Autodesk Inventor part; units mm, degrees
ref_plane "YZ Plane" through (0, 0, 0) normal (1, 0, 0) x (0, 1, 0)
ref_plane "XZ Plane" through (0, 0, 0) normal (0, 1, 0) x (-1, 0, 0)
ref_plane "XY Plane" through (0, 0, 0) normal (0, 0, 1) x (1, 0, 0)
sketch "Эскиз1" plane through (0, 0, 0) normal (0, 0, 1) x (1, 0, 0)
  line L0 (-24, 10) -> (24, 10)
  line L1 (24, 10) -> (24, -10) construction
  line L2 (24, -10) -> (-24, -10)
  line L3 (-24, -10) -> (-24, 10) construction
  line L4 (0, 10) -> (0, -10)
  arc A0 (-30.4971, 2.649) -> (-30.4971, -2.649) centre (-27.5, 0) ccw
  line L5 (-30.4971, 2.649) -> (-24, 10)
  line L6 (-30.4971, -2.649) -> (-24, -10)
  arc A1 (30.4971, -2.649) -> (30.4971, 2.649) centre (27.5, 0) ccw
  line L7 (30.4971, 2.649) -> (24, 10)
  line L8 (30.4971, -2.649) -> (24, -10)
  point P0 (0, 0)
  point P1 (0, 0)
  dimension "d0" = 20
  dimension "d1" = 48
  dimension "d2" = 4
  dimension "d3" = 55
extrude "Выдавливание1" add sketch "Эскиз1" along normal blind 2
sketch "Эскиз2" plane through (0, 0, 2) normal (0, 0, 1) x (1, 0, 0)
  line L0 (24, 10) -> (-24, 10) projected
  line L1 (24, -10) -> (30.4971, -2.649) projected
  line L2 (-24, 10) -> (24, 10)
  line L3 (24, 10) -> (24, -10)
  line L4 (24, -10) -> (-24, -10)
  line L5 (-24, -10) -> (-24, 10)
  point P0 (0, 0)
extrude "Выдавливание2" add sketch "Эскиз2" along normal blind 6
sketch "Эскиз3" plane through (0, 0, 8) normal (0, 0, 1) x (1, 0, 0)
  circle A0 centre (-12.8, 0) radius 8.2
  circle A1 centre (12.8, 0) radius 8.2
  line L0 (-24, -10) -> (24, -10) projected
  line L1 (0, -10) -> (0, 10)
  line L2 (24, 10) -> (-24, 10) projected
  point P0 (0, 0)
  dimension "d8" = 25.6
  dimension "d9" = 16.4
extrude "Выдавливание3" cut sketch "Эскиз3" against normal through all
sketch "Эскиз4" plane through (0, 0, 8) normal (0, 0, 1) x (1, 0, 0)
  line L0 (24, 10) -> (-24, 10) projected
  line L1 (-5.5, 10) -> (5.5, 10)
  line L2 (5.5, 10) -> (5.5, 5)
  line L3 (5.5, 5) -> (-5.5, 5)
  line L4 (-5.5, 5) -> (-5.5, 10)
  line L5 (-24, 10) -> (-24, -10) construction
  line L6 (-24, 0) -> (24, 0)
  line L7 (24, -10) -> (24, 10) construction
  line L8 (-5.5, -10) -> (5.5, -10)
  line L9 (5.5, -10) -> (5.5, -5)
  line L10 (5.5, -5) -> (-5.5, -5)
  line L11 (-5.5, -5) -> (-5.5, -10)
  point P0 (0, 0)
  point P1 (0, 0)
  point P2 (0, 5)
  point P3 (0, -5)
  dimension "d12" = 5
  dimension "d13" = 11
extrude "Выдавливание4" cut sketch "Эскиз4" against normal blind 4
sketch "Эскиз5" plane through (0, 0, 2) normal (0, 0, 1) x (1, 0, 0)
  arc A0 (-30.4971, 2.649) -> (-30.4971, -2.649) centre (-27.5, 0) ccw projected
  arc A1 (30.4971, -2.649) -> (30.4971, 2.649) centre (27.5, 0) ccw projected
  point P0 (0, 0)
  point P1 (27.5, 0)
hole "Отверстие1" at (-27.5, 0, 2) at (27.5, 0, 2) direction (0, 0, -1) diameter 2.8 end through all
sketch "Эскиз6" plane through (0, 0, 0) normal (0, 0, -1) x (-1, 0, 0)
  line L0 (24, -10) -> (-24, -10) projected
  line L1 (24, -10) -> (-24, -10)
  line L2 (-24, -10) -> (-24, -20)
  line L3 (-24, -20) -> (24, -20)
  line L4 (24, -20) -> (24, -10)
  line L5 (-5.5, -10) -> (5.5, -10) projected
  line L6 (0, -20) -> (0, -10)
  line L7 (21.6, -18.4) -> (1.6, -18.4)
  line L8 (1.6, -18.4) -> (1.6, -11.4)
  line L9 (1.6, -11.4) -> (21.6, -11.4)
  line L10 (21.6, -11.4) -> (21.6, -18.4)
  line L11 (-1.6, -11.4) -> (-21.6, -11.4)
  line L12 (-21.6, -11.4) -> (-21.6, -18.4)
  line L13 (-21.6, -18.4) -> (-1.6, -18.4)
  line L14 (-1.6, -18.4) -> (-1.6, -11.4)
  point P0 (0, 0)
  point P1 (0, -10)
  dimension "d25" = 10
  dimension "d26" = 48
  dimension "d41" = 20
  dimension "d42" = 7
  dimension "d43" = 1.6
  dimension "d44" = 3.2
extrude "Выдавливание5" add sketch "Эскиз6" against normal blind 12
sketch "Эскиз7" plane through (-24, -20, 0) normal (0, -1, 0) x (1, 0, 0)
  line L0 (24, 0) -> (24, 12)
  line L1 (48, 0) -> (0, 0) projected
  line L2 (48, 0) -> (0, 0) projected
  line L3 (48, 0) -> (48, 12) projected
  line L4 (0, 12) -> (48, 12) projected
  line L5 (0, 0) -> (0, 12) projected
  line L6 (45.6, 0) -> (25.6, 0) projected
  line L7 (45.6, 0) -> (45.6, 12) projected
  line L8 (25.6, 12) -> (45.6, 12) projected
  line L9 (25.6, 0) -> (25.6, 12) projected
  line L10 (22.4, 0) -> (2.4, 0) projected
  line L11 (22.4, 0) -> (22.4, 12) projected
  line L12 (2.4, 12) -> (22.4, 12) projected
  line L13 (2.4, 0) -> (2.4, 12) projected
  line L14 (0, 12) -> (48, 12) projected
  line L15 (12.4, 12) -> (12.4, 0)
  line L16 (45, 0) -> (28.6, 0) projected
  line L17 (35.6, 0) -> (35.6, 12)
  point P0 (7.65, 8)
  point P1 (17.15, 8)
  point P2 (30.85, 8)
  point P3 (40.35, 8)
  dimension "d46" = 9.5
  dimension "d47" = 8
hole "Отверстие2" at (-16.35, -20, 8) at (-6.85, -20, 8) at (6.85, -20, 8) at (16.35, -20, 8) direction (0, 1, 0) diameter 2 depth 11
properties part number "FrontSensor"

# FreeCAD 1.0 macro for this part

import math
import FreeCAD as App
import Part
import Sketcher
Q = App.Units.Quantity

doc = App.newDocument("Part")
body = doc.addObject("PartDesign::Body", "Body")

sketch1 = body.newObject("Sketcher::SketchObject", "Sketch")
sketch1.AttachmentSupport = (doc.getObject("XY_Plane"), [""])
sketch1.MapMode = "FlatFace"
sketch1.addGeometry([
    Part.LineSegment(App.Vector(-24, 10, 0), App.Vector(-30.4971, 2.649, 0)),
    Part.ArcOfCircle(Part.Circle(App.Vector(-27.5, 0, 0), App.Vector(0, 0, 1), 3.999976), math.radians(138.528001), math.radians(221.471999)),
    Part.LineSegment(App.Vector(-30.4971, -2.649, 0), App.Vector(-24, -10, 0)),
    Part.LineSegment(App.Vector(-24, -10, 0), App.Vector(24, -10, 0)),
    Part.LineSegment(App.Vector(24, -10, 0), App.Vector(30.4971, -2.649, 0)),
    Part.ArcOfCircle(Part.Circle(App.Vector(27.5, 0, 0), App.Vector(0, 0, 1), 3.999976), math.radians(-41.471999), math.radians(41.471999)),
    Part.LineSegment(App.Vector(30.4971, 2.649, 0), App.Vector(24, 10, 0)),
    Part.LineSegment(App.Vector(24, 10, 0), App.Vector(-24, 10, 0)),
], False)
sketch1.addConstraint([
    Sketcher.Constraint("Tangent", 0, 2, 1, 1),
    Sketcher.Constraint("Tangent", 1, 2, 2, 1),
    Sketcher.Constraint("Coincident", 2, 2, 3, 1),
    Sketcher.Constraint("Coincident", 3, 2, 4, 1),
    Sketcher.Constraint("Tangent", 4, 2, 5, 1),
    Sketcher.Constraint("Tangent", 5, 2, 6, 1),
    Sketcher.Constraint("Coincident", 6, 2, 7, 1),
    Sketcher.Constraint("Coincident", 7, 2, 0, 1),
    Sketcher.Constraint("Horizontal", 3),
    Sketcher.Constraint("Horizontal", 7),
    Sketcher.Constraint("Equal", 1, 5),
    Sketcher.Constraint("Symmetric", 1, 3, 5, 3, -1, 1),
    Sketcher.Constraint("Symmetric", 2, 2, 6, 2, -1, 1),
    Sketcher.Constraint("Symmetric", 1, 2, 4, 2, -2),
    Sketcher.Constraint("Parallel", 0, 4),
    Sketcher.Constraint("Radius", 1, Q("4 mm")),
    Sketcher.Constraint("DistanceX", 3, 1, 3, 2, Q("48 mm")),
    Sketcher.Constraint("DistanceX", 1, 3, 5, 3, Q("55 mm")),
    Sketcher.Constraint("DistanceY", 3, 2, 6, 2, Q("20 mm")),
])
pad1 = body.newObject("PartDesign::Pad", "Pad")
pad1.Profile = sketch1
pad1.Length = 2

sketch2 = body.newObject("Sketcher::SketchObject", "Sketch001")
sketch2.AttachmentSupport = (doc.getObject("XY_Plane"), [""])
sketch2.MapMode = "FlatFace"
sketch2.AttachmentOffset = App.Placement(App.Vector(0, 0, 2), App.Rotation())
sketch2.addGeometry([
    Part.LineSegment(App.Vector(24, -10, 0), App.Vector(24, 10, 0)),
    Part.LineSegment(App.Vector(24, 10, 0), App.Vector(-24, 10, 0)),
    Part.LineSegment(App.Vector(-24, 10, 0), App.Vector(-24, -10, 0)),
    Part.LineSegment(App.Vector(-24, -10, 0), App.Vector(24, -10, 0)),
], False)
sketch2.addConstraint([
    Sketcher.Constraint("Coincident", 0, 2, 1, 1),
    Sketcher.Constraint("Coincident", 1, 2, 2, 1),
    Sketcher.Constraint("Coincident", 2, 2, 3, 1),
    Sketcher.Constraint("Coincident", 3, 2, 0, 1),
    Sketcher.Constraint("Vertical", 0),
    Sketcher.Constraint("Horizontal", 1),
    Sketcher.Constraint("Vertical", 2),
    Sketcher.Constraint("Horizontal", 3),
    Sketcher.Constraint("Symmetric", 0, 2, 2, 2, -1, 1),
    Sketcher.Constraint("DistanceX", 1, 2, 1, 1, Q("48 mm")),
    Sketcher.Constraint("DistanceY", 0, 1, 0, 2, Q("20 mm")),
])
pad2 = body.newObject("PartDesign::Pad", "Pad001")
pad2.Profile = sketch2
pad2.Length = 6

sketch3 = body.newObject("Sketcher::SketchObject", "Sketch002")
sketch3.AttachmentSupport = (doc.getObject("XY_Plane"), [""])
sketch3.MapMode = "FlatFace"
sketch3.AttachmentOffset = App.Placement(App.Vector(0, 0, 8), App.Rotation())
sketch3.addGeometry([
    Part.Circle(App.Vector(-12.8, 0, 0), App.Vector(0, 0, 1), 8.2),
    Part.Circle(App.Vector(12.8, 0, 0), App.Vector(0, 0, 1), 8.2),
], False)
sketch3.addConstraint([
    Sketcher.Constraint("Equal", 0, 1),
    Sketcher.Constraint("Symmetric", 0, 3, 1, 3, -1, 1),
    Sketcher.Constraint("PointOnObject", 0, 3, -1),
    Sketcher.Constraint("Diameter", 0, Q("16.4 mm")),
    Sketcher.Constraint("DistanceX", 0, 3, 1, 3, Q("25.6 mm")),
])
pocket1 = body.newObject("PartDesign::Pocket", "Pocket")
pocket1.Profile = sketch3
pocket1.Type = "ThroughAll"

sketch4 = body.newObject("Sketcher::SketchObject", "Sketch003")
sketch4.AttachmentSupport = (doc.getObject("XY_Plane"), [""])
sketch4.MapMode = "FlatFace"
sketch4.AttachmentOffset = App.Placement(App.Vector(0, 0, 8), App.Rotation())
sketch4.addGeometry([
    Part.LineSegment(App.Vector(5.5, 5, 0), App.Vector(5.5, 10, 0)),
    Part.LineSegment(App.Vector(5.5, 10, 0), App.Vector(-5.5, 10, 0)),
    Part.LineSegment(App.Vector(-5.5, 10, 0), App.Vector(-5.5, 5, 0)),
    Part.LineSegment(App.Vector(-5.5, 5, 0), App.Vector(5.5, 5, 0)),
    Part.LineSegment(App.Vector(-5.5, -5, 0), App.Vector(-5.5, -10, 0)),
    Part.LineSegment(App.Vector(-5.5, -10, 0), App.Vector(5.5, -10, 0)),
    Part.LineSegment(App.Vector(5.5, -10, 0), App.Vector(5.5, -5, 0)),
    Part.LineSegment(App.Vector(5.5, -5, 0), App.Vector(-5.5, -5, 0)),
], False)
sketch4.addConstraint([
    Sketcher.Constraint("Coincident", 0, 2, 1, 1),
    Sketcher.Constraint("Coincident", 1, 2, 2, 1),
    Sketcher.Constraint("Coincident", 2, 2, 3, 1),
    Sketcher.Constraint("Coincident", 3, 2, 0, 1),
    Sketcher.Constraint("Coincident", 4, 2, 5, 1),
    Sketcher.Constraint("Coincident", 5, 2, 6, 1),
    Sketcher.Constraint("Coincident", 6, 2, 7, 1),
    Sketcher.Constraint("Coincident", 7, 2, 4, 1),
    Sketcher.Constraint("Vertical", 0),
    Sketcher.Constraint("Horizontal", 1),
    Sketcher.Constraint("Vertical", 2),
    Sketcher.Constraint("Horizontal", 3),
    Sketcher.Constraint("Vertical", 4),
    Sketcher.Constraint("Horizontal", 5),
    Sketcher.Constraint("Vertical", 6),
    Sketcher.Constraint("Horizontal", 7),
    Sketcher.Constraint("Symmetric", 0, 2, 4, 2, -1, 1),
    Sketcher.Constraint("Symmetric", 2, 2, 6, 2, -1, 1),
    Sketcher.Constraint("Vertical", 2, 2, 4, 2),
    Sketcher.Constraint("DistanceX", 1, 2, 1, 1, Q("11 mm")),
    Sketcher.Constraint("DistanceY", 0, 1, 0, 2, Q("5 mm")),
    Sketcher.Constraint("DistanceY", -1, 1, 2, 2, Q("5 mm")),
])
pocket2 = body.newObject("PartDesign::Pocket", "Pocket001")
pocket2.Profile = sketch4
pocket2.Length = 4

sketch5 = body.newObject("Sketcher::SketchObject", "Sketch004")
sketch5.AttachmentSupport = (doc.getObject("XY_Plane"), [""])
sketch5.MapMode = "FlatFace"
sketch5.AttachmentOffset = App.Placement(App.Vector(0, 0, 2), App.Rotation())
sketch5.addGeometry([
    Part.Circle(App.Vector(-27.5, 0, 0), App.Vector(0, 0, 1), 1.4),
    Part.Circle(App.Vector(27.5, 0, 0), App.Vector(0, 0, 1), 1.4),
], False)
sketch5.addConstraint([
    Sketcher.Constraint("Equal", 0, 1),
    Sketcher.Constraint("Symmetric", 0, 3, 1, 3, -1, 1),
    Sketcher.Constraint("PointOnObject", 0, 3, -1),
    Sketcher.Constraint("Diameter", 0, Q("2.8 mm")),
    Sketcher.Constraint("DistanceX", 0, 3, 1, 3, Q("55 mm")),
])
doc.recompute()
hole = body.newObject("PartDesign::Hole", "Hole")
hole.Profile = sketch5
hole.ThreadType = "None"
hole.Diameter = 2.8
hole.DepthType = "ThroughAll"

sketch6 = body.newObject("Sketcher::SketchObject", "Sketch005")
sketch6.AttachmentSupport = (doc.getObject("XY_Plane"), [""])
sketch6.MapMode = "FlatFace"
sketch6.addGeometry([
    Part.LineSegment(App.Vector(-24, -20, 0), App.Vector(-24, -10, 0)),
    Part.LineSegment(App.Vector(-24, -10, 0), App.Vector(24, -10, 0)),
    Part.LineSegment(App.Vector(24, -10, 0), App.Vector(24, -20, 0)),
    Part.LineSegment(App.Vector(24, -20, 0), App.Vector(-24, -20, 0)),
    Part.LineSegment(App.Vector(-21.6, -11.4, 0), App.Vector(-21.6, -18.4, 0)),
    Part.LineSegment(App.Vector(-21.6, -18.4, 0), App.Vector(-1.6, -18.4, 0)),
    Part.LineSegment(App.Vector(-1.6, -18.4, 0), App.Vector(-1.6, -11.4, 0)),
    Part.LineSegment(App.Vector(-1.6, -11.4, 0), App.Vector(-21.6, -11.4, 0)),
    Part.LineSegment(App.Vector(1.6, -11.4, 0), App.Vector(1.6, -18.4, 0)),
    Part.LineSegment(App.Vector(1.6, -18.4, 0), App.Vector(21.6, -18.4, 0)),
    Part.LineSegment(App.Vector(21.6, -18.4, 0), App.Vector(21.6, -11.4, 0)),
    Part.LineSegment(App.Vector(21.6, -11.4, 0), App.Vector(1.6, -11.4, 0)),
], False)
sketch6.addConstraint([
    Sketcher.Constraint("Coincident", 0, 2, 1, 1),
    Sketcher.Constraint("Coincident", 1, 2, 2, 1),
    Sketcher.Constraint("Coincident", 2, 2, 3, 1),
    Sketcher.Constraint("Coincident", 3, 2, 0, 1),
    Sketcher.Constraint("Coincident", 4, 2, 5, 1),
    Sketcher.Constraint("Coincident", 5, 2, 6, 1),
    Sketcher.Constraint("Coincident", 6, 2, 7, 1),
    Sketcher.Constraint("Coincident", 7, 2, 4, 1),
    Sketcher.Constraint("Coincident", 8, 2, 9, 1),
    Sketcher.Constraint("Coincident", 9, 2, 10, 1),
    Sketcher.Constraint("Coincident", 10, 2, 11, 1),
    Sketcher.Constraint("Coincident", 11, 2, 8, 1),
    Sketcher.Constraint("Vertical", 0),
    Sketcher.Constraint("Horizontal", 1),
    Sketcher.Constraint("Vertical", 2),
    Sketcher.Constraint("Horizontal", 3),
    Sketcher.Constraint("Vertical", 4),
    Sketcher.Constraint("Horizontal", 5),
    Sketcher.Constraint("Vertical", 6),
    Sketcher.Constraint("Horizontal", 7),
    Sketcher.Constraint("Vertical", 8),
    Sketcher.Constraint("Horizontal", 9),
    Sketcher.Constraint("Vertical", 10),
    Sketcher.Constraint("Horizontal", 11),
    Sketcher.Constraint("Symmetric", 5, 2, 8, 2, -2),
    Sketcher.Constraint("Symmetric", 7, 2, 10, 2, -2),
    Sketcher.Constraint("DistanceX", 1, 1, 1, 2, Q("48 mm")),
    Sketcher.Constraint("DistanceX", 5, 1, 5, 2, Q("20 mm")),
    Sketcher.Constraint("DistanceY", 0, 1, 0, 2, Q("10 mm")),
    Sketcher.Constraint("DistanceY", 4, 2, 4, 1, Q("7 mm")),
    Sketcher.Constraint("DistanceY", 0, 2, -1, 1, Q("10 mm")),
    Sketcher.Constraint("DistanceX", 5, 2, -1, 1, Q("1.6 mm")),
    Sketcher.Constraint("DistanceY", 3, 2, 4, 2, Q("1.6 mm")),
    Sketcher.Constraint("DistanceX", 0, 2, -1, 1, Q("24 mm")),
])
pad3 = body.newObject("PartDesign::Pad", "Pad002")
pad3.Profile = sketch6
pad3.Length = 12

sketch7 = body.newObject("Sketcher::SketchObject", "Sketch006")
sketch7.AttachmentSupport = (doc.getObject("XZ_Plane"), [""])
sketch7.MapMode = "FlatFace"
sketch7.AttachmentOffset = App.Placement(App.Vector(0, 0, 20), App.Rotation())
sketch7.addGeometry([
    Part.Circle(App.Vector(-16.35, 8, 0), App.Vector(0, 0, 1), 1),
    Part.Circle(App.Vector(-6.85, 8, 0), App.Vector(0, 0, 1), 1),
    Part.Circle(App.Vector(6.85, 8, 0), App.Vector(0, 0, 1), 1),
    Part.Circle(App.Vector(16.35, 8, 0), App.Vector(0, 0, 1), 1),
], False)
sketch7.addConstraint([
    Sketcher.Constraint("Equal", 0, 1),
    Sketcher.Constraint("Equal", 1, 2),
    Sketcher.Constraint("Equal", 2, 3),
    Sketcher.Constraint("Symmetric", 1, 3, 2, 3, -2),
    Sketcher.Constraint("Symmetric", 0, 3, 3, 3, -2),
    Sketcher.Constraint("Horizontal", 0, 3, 1, 3),
    Sketcher.Constraint("Diameter", 0, Q("2 mm")),
    Sketcher.Constraint("DistanceY", -1, 1, 0, 3, Q("8 mm")),
    Sketcher.Constraint("DistanceX", 0, 3, 1, 3, Q("9.5 mm")),
    Sketcher.Constraint("DistanceX", 1, 3, 2, 3, Q("13.7 mm")),
])
doc.recompute()
hole2 = body.newObject("PartDesign::Hole", "Hole001")
hole2.Profile = sketch7
hole2.ThreadType = "None"
hole2.Diameter = 2
hole2.DepthType = "Dimension"
hole2.Depth = 11
hole2.DrillPoint = "Flat"

doc.recompute()
